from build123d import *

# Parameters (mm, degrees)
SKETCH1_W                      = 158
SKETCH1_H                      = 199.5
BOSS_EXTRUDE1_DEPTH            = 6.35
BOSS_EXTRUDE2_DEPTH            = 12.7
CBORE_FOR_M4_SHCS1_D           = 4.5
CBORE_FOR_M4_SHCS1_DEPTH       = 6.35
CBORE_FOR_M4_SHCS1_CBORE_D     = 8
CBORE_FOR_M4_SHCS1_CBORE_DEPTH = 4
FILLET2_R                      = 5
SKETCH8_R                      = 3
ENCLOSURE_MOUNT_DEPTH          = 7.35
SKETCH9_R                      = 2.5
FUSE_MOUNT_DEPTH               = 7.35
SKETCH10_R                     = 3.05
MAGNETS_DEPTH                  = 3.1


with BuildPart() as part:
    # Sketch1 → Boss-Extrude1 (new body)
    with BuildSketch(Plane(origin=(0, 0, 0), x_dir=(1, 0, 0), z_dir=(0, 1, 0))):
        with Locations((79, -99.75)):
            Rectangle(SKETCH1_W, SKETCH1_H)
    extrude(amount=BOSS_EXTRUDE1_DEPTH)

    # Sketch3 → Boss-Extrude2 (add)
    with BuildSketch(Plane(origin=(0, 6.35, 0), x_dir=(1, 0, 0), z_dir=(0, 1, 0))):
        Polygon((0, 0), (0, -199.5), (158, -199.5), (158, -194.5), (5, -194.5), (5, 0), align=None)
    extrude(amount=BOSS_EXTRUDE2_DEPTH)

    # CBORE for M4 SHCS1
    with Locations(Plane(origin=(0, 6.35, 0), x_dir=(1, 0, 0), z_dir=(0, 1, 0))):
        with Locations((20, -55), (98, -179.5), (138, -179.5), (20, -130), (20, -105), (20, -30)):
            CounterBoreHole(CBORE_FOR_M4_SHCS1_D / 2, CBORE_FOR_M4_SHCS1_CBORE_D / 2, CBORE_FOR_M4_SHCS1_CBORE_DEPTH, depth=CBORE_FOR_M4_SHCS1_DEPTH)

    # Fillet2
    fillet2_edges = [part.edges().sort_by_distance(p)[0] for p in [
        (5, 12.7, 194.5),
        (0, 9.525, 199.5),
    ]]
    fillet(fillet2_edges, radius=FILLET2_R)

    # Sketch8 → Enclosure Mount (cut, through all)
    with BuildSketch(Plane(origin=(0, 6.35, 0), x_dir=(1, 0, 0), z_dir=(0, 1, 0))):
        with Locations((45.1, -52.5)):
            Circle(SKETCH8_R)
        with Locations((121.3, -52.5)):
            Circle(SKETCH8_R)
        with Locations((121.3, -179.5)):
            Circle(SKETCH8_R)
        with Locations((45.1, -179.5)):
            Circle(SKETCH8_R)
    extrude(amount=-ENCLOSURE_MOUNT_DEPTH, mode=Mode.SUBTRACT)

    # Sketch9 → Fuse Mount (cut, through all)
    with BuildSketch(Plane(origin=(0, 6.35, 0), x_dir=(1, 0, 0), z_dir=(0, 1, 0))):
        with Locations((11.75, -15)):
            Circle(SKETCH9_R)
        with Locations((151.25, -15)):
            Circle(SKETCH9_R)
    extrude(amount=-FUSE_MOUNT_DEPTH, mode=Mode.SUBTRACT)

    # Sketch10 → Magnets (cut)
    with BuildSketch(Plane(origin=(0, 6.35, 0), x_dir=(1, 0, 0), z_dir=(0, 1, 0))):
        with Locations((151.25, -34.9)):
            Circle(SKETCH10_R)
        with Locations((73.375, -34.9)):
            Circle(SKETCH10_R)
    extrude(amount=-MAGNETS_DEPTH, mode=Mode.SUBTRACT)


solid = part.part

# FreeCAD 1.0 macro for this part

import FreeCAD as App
import Part
import Sketcher
Q = App.Units.Quantity


def edges_at(feature, points):
    """Names of the edges that pass closest to the given points."""
    edges = feature.Shape.Edges
    near = lambda p: min(range(len(edges)), key=lambda i: edges[i].distToShape(Part.Vertex(*p))[0])
    return sorted({f"Edge{near(p) + 1}" for p in points})


def add_polygon(sketch, points):
    """Adds a closed chain of lines whose ends are joined by coincident constraints."""
    first, n = sketch.GeometryCount, len(points)
    for a, b in zip(points, points[1:] + points[:1]):
        sketch.addGeometry(Part.LineSegment(App.Vector(*a, 0), App.Vector(*b, 0)), False)
    for i in range(n):
        sketch.addConstraint(Sketcher.Constraint("Coincident", first + i, 2, first + (i + 1) % n, 1))

doc = App.newDocument("Part")
body = doc.addObject("PartDesign::Body", "Body")

# Sketch on XZ plane
sketch1 = body.newObject("Sketcher::SketchObject", "Sketch")
sketch1.AttachmentSupport = (doc.getObject("XZ_Plane"), [""])
sketch1.MapMode = "FlatFace"
add_polygon(sketch1, [(0, 0), (0, 199.5), (158, 199.5), (158, 0)])  # lines 0-3
sketch1.addConstraint(Sketcher.Constraint("Vertical", 0))
sketch1.addConstraint(Sketcher.Constraint("Horizontal", 1))
sketch1.addConstraint(Sketcher.Constraint("Vertical", 2))
sketch1.addConstraint(Sketcher.Constraint("Horizontal", 3))
sketch1.addConstraint(Sketcher.Constraint("Coincident", 3, 2, -1, 1))
sketch1.addConstraint(Sketcher.Constraint("DistanceX", 1, 1, 1, 2, Q("158 mm")))
sketch1.addConstraint(Sketcher.Constraint("DistanceY", 0, 1, 0, 2, Q("199.5 mm")))
pad1 = body.newObject("PartDesign::Pad", "Pad")
pad1.Profile = sketch1
pad1.Length = 6.35
pad1.Reversed = True

# Sketch on XZ plane
sketch2 = body.newObject("Sketcher::SketchObject", "Sketch001")
sketch2.AttachmentSupport = (doc.getObject("XZ_Plane"), [""])
sketch2.MapMode = "FlatFace"
sketch2.AttachmentOffset = App.Placement(App.Vector(0, 0, -6.35), App.Rotation())
add_polygon(sketch2, [(0, 0), (0, 199.5), (158, 199.5), (158, 194.5), (5, 194.5), (5, 0)])  # lines 0-5
sketch2.addConstraint(Sketcher.Constraint("Vertical", 0))
sketch2.addConstraint(Sketcher.Constraint("Horizontal", 1))
sketch2.addConstraint(Sketcher.Constraint("Vertical", 2))
sketch2.addConstraint(Sketcher.Constraint("Horizontal", 3))
sketch2.addConstraint(Sketcher.Constraint("Vertical", 4))
sketch2.addConstraint(Sketcher.Constraint("Horizontal", 5))
sketch2.addConstraint(Sketcher.Constraint("Coincident", 5, 2, -1, 1))
sketch2.addConstraint(Sketcher.Constraint("Equal", 5, 2))
sketch2.addConstraint(Sketcher.Constraint("DistanceX", 1, 1, 1, 2, Q("158 mm")))
sketch2.addConstraint(Sketcher.Constraint("DistanceX", 3, 2, 3, 1, Q("153 mm")))
sketch2.addConstraint(Sketcher.Constraint("DistanceY", 0, 1, 0, 2, Q("199.5 mm")))
pad2 = body.newObject("PartDesign::Pad", "Pad001")
pad2.Profile = sketch2
pad2.Length = 12.7
pad2.Reversed = True

# Sketch on XZ plane
sketch3 = body.newObject("Sketcher::SketchObject", "Sketch002")
sketch3.AttachmentSupport = (doc.getObject("XZ_Plane"), [""])
sketch3.MapMode = "FlatFace"
sketch3.AttachmentOffset = App.Placement(App.Vector(0, 0, -6.35), App.Rotation())
sketch3.addGeometry(Part.Circle(App.Vector(20, 55, 0), App.Vector(0, 0, 1), 2.25), False)
sketch3.addGeometry(Part.Circle(App.Vector(98, 179.5, 0), App.Vector(0, 0, 1), 2.25), False)
sketch3.addGeometry(Part.Circle(App.Vector(138, 179.5, 0), App.Vector(0, 0, 1), 2.25), False)
sketch3.addGeometry(Part.Circle(App.Vector(20, 130, 0), App.Vector(0, 0, 1), 2.25), False)
sketch3.addGeometry(Part.Circle(App.Vector(20, 105, 0), App.Vector(0, 0, 1), 2.25), False)
sketch3.addGeometry(Part.Circle(App.Vector(20, 30, 0), App.Vector(0, 0, 1), 2.25), False)
sketch3.addConstraint(Sketcher.Constraint("Equal", 0, 1))
sketch3.addConstraint(Sketcher.Constraint("Equal", 1, 2))
sketch3.addConstraint(Sketcher.Constraint("Equal", 2, 3))
sketch3.addConstraint(Sketcher.Constraint("Equal", 3, 4))
sketch3.addConstraint(Sketcher.Constraint("Equal", 4, 5))
sketch3.addConstraint(Sketcher.Constraint("Horizontal", 1, 3, 2, 3))
sketch3.addConstraint(Sketcher.Constraint("Vertical", 0, 3, 3, 3))
sketch3.addConstraint(Sketcher.Constraint("Vertical", 3, 3, 4, 3))
sketch3.addConstraint(Sketcher.Constraint("Vertical", 4, 3, 5, 3))
sketch3.addConstraint(Sketcher.Constraint("Diameter", 0, Q("4.5 mm")))
sketch3.addConstraint(Sketcher.Constraint("DistanceX", -1, 1, 0, 3, Q("20 mm")))
sketch3.addConstraint(Sketcher.Constraint("DistanceY", -1, 1, 0, 3, Q("55 mm")))
sketch3.addConstraint(Sketcher.Constraint("DistanceX", -1, 1, 1, 3, Q("98 mm")))
sketch3.addConstraint(Sketcher.Constraint("DistanceX", -1, 1, 2, 3, Q("138 mm")))
sketch3.addConstraint(Sketcher.Constraint("DistanceY", -1, 1, 3, 3, Q("130 mm")))
sketch3.addConstraint(Sketcher.Constraint("DistanceY", -1, 1, 4, 3, Q("105 mm")))
sketch3.addConstraint(Sketcher.Constraint("DistanceY", -1, 1, 5, 3, Q("30 mm")))
sketch3.addConstraint(Sketcher.Constraint("DistanceY", -1, 1, 1, 3, Q("179.5 mm")))
doc.recompute()
hole = body.newObject("PartDesign::Hole", "Hole")
hole.Profile = sketch3
hole.ThreadType = "None"
hole.Diameter = 4.5
hole.DepthType = "Dimension"
hole.Depth = 6.35
hole.DrillPoint = "Flat"
hole.HoleCutType = "Counterbore"
hole.HoleCutDiameter = 8
hole.HoleCutDepth = 4
hole.Reversed = True
doc.recompute()

fillet = body.newObject("PartDesign::Fillet", "Fillet")
fillet.Base = (hole, edges_at(hole, [(5, 12.7, 194.5), (0, 9.525, 199.5)]))
fillet.Radius = 5

# Sketch on XZ plane
sketch4 = body.newObject("Sketcher::SketchObject", "Sketch003")
sketch4.AttachmentSupport = (doc.getObject("XZ_Plane"), [""])
sketch4.MapMode = "FlatFace"
sketch4.AttachmentOffset = App.Placement(App.Vector(0, 0, -6.35), App.Rotation())
sketch4.addGeometry(Part.Circle(App.Vector(45.1, 52.5, 0), App.Vector(0, 0, 1), 3), False)
sketch4.addGeometry(Part.Circle(App.Vector(121.3, 52.5, 0), App.Vector(0, 0, 1), 3), False)
sketch4.addGeometry(Part.Circle(App.Vector(121.3, 179.5, 0), App.Vector(0, 0, 1), 3), False)
sketch4.addGeometry(Part.Circle(App.Vector(45.1, 179.5, 0), App.Vector(0, 0, 1), 3), False)
sketch4.addConstraint(Sketcher.Constraint("Equal", 0, 1))
sketch4.addConstraint(Sketcher.Constraint("Equal", 1, 2))
sketch4.addConstraint(Sketcher.Constraint("Equal", 2, 3))
sketch4.addConstraint(Sketcher.Constraint("Horizontal", 0, 3, 1, 3))
sketch4.addConstraint(Sketcher.Constraint("Horizontal", 2, 3, 3, 3))
sketch4.addConstraint(Sketcher.Constraint("Vertical", 1, 3, 2, 3))
sketch4.addConstraint(Sketcher.Constraint("Vertical", 0, 3, 3, 3))
sketch4.addConstraint(Sketcher.Constraint("Diameter", 0, Q("6 mm")))
sketch4.addConstraint(Sketcher.Constraint("DistanceY", 1, 3, 2, 3, Q("127 mm")))
sketch4.addConstraint(Sketcher.Constraint("DistanceX", -1, 1, 0, 3, Q("45.1 mm")))
sketch4.addConstraint(Sketcher.Constraint("DistanceY", -1, 1, 0, 3, Q("52.5 mm")))
sketch4.addConstraint(Sketcher.Constraint("DistanceX", -1, 1, 1, 3, Q("121.3 mm")))
pocket1 = body.newObject("PartDesign::Pocket", "Pocket")
pocket1.Profile = sketch4
pocket1.Type = "ThroughAll"
pocket1.Reversed = True

# Sketch on XZ plane
sketch5 = body.newObject("Sketcher::SketchObject", "Sketch004")
sketch5.AttachmentSupport = (doc.getObject("XZ_Plane"), [""])
sketch5.MapMode = "FlatFace"
sketch5.AttachmentOffset = App.Placement(App.Vector(0, 0, -6.35), App.Rotation())
sketch5.addGeometry(Part.Circle(App.Vector(11.75, 15, 0), App.Vector(0, 0, 1), 2.5), False)
sketch5.addGeometry(Part.Circle(App.Vector(151.25, 15, 0), App.Vector(0, 0, 1), 2.5), False)
sketch5.addConstraint(Sketcher.Constraint("Equal", 0, 1))
sketch5.addConstraint(Sketcher.Constraint("Horizontal", 0, 3, 1, 3))
sketch5.addConstraint(Sketcher.Constraint("Diameter", 0, Q("5 mm")))
sketch5.addConstraint(Sketcher.Constraint("DistanceY", -1, 1, 0, 3, Q("15 mm")))
sketch5.addConstraint(Sketcher.Constraint("DistanceX", 0, 3, 1, 3, Q("139.5 mm")))
sketch5.addConstraint(Sketcher.Constraint("DistanceX", -1, 1, 0, 3, Q("11.75 mm")))
pocket2 = body.newObject("PartDesign::Pocket", "Pocket001")
pocket2.Profile = sketch5
pocket2.Type = "ThroughAll"
pocket2.Reversed = True

# Sketch on XZ plane
sketch6 = body.newObject("Sketcher::SketchObject", "Sketch005")
sketch6.AttachmentSupport = (doc.getObject("XZ_Plane"), [""])
sketch6.MapMode = "FlatFace"
sketch6.AttachmentOffset = App.Placement(App.Vector(0, 0, -6.35), App.Rotation())
sketch6.addGeometry(Part.Circle(App.Vector(151.25, 34.9, 0), App.Vector(0, 0, 1), 3.05), False)
sketch6.addGeometry(Part.Circle(App.Vector(73.375, 34.9, 0), App.Vector(0, 0, 1), 3.05), False)
sketch6.addConstraint(Sketcher.Constraint("Equal", 0, 1))
sketch6.addConstraint(Sketcher.Constraint("Horizontal", 0, 3, 1, 3))
sketch6.addConstraint(Sketcher.Constraint("Diameter", 0, Q("6.1 mm")))
sketch6.addConstraint(Sketcher.Constraint("DistanceY", -1, 1, 0, 3, Q("34.9 mm")))
sketch6.addConstraint(Sketcher.Constraint("DistanceX", -1, 1, 0, 3, Q("151.25 mm")))
sketch6.addConstraint(Sketcher.Constraint("DistanceX", -1, 1, 1, 3, Q("73.375 mm")))
pocket3 = body.newObject("PartDesign::Pocket", "Pocket002")
pocket3.Profile = sketch6
pocket3.Length = 3.1
pocket3.Reversed = True

doc.recompute()
